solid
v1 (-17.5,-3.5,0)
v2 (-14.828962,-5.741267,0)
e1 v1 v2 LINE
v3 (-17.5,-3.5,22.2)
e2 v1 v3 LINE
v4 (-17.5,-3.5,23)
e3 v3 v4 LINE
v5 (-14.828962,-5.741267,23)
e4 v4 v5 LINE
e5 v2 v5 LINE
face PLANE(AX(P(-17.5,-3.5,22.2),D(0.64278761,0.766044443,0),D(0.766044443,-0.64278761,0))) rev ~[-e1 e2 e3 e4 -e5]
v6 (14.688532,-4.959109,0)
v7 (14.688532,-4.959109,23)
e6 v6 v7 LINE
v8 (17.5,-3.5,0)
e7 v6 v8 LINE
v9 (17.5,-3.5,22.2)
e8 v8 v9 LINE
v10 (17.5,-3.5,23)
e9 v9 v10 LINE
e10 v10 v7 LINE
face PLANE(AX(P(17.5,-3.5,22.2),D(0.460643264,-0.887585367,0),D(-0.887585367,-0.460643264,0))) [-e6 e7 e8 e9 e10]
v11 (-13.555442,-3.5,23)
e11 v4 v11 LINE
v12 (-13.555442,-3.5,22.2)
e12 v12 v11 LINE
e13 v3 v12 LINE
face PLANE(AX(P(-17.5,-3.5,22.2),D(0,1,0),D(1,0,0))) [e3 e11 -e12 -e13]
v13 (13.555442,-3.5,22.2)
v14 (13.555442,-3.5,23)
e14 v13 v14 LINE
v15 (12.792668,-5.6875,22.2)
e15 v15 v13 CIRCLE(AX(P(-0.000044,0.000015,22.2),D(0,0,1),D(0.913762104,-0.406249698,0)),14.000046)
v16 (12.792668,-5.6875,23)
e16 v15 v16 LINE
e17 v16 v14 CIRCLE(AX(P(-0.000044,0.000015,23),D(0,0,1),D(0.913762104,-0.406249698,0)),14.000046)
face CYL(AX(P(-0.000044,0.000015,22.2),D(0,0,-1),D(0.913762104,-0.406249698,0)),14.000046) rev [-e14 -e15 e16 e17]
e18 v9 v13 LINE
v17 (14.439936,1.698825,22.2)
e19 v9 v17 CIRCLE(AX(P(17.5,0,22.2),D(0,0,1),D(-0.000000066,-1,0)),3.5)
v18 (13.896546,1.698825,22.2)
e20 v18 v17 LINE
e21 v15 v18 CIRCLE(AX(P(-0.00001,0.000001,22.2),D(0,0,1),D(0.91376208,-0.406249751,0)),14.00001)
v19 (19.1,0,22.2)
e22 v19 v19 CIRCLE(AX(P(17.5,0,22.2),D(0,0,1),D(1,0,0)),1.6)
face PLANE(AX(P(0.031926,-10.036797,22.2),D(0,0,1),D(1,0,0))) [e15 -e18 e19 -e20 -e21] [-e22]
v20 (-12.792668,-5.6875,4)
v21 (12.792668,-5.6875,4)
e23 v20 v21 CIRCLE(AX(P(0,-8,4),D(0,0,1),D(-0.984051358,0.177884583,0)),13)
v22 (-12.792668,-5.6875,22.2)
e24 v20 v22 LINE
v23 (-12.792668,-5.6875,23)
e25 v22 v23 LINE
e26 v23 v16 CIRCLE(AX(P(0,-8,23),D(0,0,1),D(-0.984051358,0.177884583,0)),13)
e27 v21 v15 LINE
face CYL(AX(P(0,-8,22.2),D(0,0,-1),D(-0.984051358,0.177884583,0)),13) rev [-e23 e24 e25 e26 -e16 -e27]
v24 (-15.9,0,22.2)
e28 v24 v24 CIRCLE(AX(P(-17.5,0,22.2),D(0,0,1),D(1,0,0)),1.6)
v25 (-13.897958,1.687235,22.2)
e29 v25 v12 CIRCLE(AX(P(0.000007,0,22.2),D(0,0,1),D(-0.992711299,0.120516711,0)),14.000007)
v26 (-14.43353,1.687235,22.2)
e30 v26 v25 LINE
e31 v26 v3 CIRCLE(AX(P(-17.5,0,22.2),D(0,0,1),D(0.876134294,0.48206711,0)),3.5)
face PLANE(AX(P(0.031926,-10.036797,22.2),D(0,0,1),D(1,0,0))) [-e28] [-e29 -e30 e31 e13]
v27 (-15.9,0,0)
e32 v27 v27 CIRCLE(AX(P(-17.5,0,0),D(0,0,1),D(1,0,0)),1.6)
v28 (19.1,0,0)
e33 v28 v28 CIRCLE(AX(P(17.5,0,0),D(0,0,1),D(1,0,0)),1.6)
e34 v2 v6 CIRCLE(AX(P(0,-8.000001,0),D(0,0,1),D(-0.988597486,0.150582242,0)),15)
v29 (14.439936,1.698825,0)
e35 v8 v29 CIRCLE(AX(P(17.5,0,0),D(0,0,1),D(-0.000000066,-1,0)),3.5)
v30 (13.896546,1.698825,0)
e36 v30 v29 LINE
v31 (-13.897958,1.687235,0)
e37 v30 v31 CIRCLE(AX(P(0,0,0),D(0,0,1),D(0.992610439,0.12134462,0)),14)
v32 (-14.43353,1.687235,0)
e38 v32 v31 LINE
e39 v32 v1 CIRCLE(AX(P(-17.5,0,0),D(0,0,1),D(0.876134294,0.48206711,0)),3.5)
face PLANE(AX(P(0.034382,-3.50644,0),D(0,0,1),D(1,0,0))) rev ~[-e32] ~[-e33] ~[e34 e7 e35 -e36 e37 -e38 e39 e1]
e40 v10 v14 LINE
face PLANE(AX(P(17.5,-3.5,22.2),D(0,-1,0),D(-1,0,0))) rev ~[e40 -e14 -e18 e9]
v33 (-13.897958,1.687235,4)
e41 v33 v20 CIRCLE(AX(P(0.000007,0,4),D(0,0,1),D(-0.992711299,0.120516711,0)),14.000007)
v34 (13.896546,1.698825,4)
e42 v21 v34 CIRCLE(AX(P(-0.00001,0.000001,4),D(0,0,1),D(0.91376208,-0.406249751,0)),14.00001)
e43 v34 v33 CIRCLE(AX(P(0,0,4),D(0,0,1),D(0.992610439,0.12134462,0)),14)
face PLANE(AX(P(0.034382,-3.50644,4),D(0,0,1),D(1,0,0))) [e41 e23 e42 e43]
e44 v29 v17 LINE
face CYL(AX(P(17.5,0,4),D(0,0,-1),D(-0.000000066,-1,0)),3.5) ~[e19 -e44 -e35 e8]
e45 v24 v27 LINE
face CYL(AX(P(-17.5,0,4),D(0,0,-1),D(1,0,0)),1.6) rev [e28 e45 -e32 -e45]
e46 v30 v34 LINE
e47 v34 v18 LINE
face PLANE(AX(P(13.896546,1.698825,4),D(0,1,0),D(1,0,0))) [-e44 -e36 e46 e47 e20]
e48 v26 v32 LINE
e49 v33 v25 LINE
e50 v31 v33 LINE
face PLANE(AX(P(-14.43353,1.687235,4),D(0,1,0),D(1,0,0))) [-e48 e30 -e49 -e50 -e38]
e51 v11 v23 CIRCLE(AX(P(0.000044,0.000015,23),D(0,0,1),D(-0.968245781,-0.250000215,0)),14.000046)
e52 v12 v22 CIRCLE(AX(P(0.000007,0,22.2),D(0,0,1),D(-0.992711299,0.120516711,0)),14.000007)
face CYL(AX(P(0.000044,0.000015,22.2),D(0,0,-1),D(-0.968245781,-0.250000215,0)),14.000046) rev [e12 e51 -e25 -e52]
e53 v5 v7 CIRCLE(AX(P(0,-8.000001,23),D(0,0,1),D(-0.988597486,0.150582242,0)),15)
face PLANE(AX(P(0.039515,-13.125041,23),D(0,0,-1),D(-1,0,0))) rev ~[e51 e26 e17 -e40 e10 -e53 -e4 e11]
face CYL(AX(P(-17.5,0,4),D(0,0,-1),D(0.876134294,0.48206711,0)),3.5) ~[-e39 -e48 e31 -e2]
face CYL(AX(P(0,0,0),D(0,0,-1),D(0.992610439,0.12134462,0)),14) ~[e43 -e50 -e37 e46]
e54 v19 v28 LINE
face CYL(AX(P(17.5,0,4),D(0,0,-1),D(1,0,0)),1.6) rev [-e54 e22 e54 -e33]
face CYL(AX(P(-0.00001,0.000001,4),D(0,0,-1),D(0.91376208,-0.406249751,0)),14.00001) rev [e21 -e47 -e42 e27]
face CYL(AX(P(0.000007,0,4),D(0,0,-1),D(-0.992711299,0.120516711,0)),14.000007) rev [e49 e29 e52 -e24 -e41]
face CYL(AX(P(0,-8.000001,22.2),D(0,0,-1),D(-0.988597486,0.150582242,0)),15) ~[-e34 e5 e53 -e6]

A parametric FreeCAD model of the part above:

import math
import FreeCAD as App
import Part
import Sketcher

V = App.Vector
Q = App.Units.Quantity

doc = App.newDocument("Part")
body = doc.addObject("PartDesign::Body", "Body")

# Sketch on XY plane
sketch1 = doc.addObject("Sketcher::SketchObject", "Sketch")
body.addObject(sketch1)
sketch1.AttachmentSupport = (doc.XY_Plane, [""])
sketch1.MapMode = "FlatFace"
sketch1.addGeometry([
    Part.ArcOfCircle(Part.Circle(V(-17.5, 0, 0), V(0, 0, 1), 3.5), math.radians(28.820495), math.radians(270.000002)),  # 0
    Part.LineSegment(V(-17.5, -3.5, 0), V(-14.828962, -5.741267, 0)),  # 1
    Part.ArcOfCircle(Part.Circle(V(0, -8.000001, 0), V(0, 0, 1), 15), math.radians(171.33933), math.radians(371.69642)),  # 2
    Part.LineSegment(V(14.688532, -4.959109, 0), V(17.5, -3.5, 0)),  # 3
    Part.ArcOfCircle(Part.Circle(V(17.5, 0, 0), V(0, 0, 1), 3.5), math.radians(-90.000004), math.radians(150.96272)),  # 4
    Part.LineSegment(V(14.439936, 1.698825, 0), V(13.896546, 1.698825, 0)),  # 5
    Part.ArcOfCircle(Part.Circle(V(0, 0, 0), V(0, 0, 1), 14), math.radians(6.969711), math.radians(173.078073)),  # 6
    Part.LineSegment(V(-13.897958, 1.687235, 0), V(-14.43353, 1.687235, 0)),  # 7
    Part.Circle(V(-17.5, 0, 0), V(0, 0, 1), 1.6),  # 8
    Part.Circle(V(17.5, 0, 0), V(0, 0, 1), 1.6),  # 9
], False)
sketch1.addConstraint([
    Sketcher.Constraint("Coincident", 0, 2, 1, 1),
    Sketcher.Constraint("Coincident", 1, 2, 2, 1),
    Sketcher.Constraint("Coincident", 2, 2, 3, 1),
    Sketcher.Constraint("Coincident", 3, 2, 4, 1),
    Sketcher.Constraint("Coincident", 4, 2, 5, 1),
    Sketcher.Constraint("Coincident", 5, 2, 6, 1),
    Sketcher.Constraint("Coincident", 6, 2, 7, 1),
    Sketcher.Constraint("Coincident", 7, 2, 0, 1),
    Sketcher.Constraint("Horizontal", 5),
    Sketcher.Constraint("Horizontal", 7),
    Sketcher.Constraint("Coincident", 6, 3, -1, 1),
    Sketcher.Constraint("Coincident", 8, 3, 0, 3),
    Sketcher.Constraint("Coincident", 9, 3, 4, 3),
    Sketcher.Constraint("Equal", 0, 4),
    Sketcher.Constraint("Equal", 8, 9),
    Sketcher.Constraint("Symmetric", 0, 3, 4, 3, -1, 1),
    Sketcher.Constraint("Symmetric", 0, 2, 3, 2, -2),
    Sketcher.Constraint("PointOnObject", 2, 3, -2),
    Sketcher.Constraint("Vertical", 8, 3, 0, 2),
    Sketcher.Constraint("Radius", 2, 15.0),
    Sketcher.Constraint("Radius", 6, 14.0),
    Sketcher.Constraint("Diameter", 8, 3.2),
    Sketcher.Constraint("Radius", 0, 3.5),
    Sketcher.Constraint("Angle", 1, Q("-40 deg")),
    Sketcher.Constraint("DistanceY", 2, 3, -1, 1, 8.000001),
    Sketcher.Constraint("DistanceX", 0, 3, 4, 3, 35.0),
    Sketcher.Constraint("DistanceX", 5, 2, 5, 1, 0.54339),
    Sketcher.Constraint("DistanceY", 1, 2, 6, 2, 7.428502),
    Sketcher.Constraint("DistanceY", 2, 2, -1, 1, 4.959109),
])
pad1 = doc.addObject("PartDesign::Pad", "Pad")
body.addObject(pad1)
pad1.Profile = sketch1
pad1.Length = 4

# Sketch on XY plane
sketch2 = doc.addObject("Sketcher::SketchObject", "Sketch001")
body.addObject(sketch2)
sketch2.AttachmentSupport = (doc.XY_Plane, [""])
sketch2.MapMode = "FlatFace"
sketch2.AttachmentOffset = App.Placement(V(0, 0, 4), App.Rotation())
sketch2.addGeometry([
    Part.ArcOfCircle(Part.Circle(V(-17.5, 0, 0), V(0, 0, 1), 3.5), math.radians(28.820495), math.radians(270.000002)),  # 0
    Part.LineSegment(V(-17.5, -3.5, 0), V(-14.828962, -5.741267, 0)),  # 1
    Part.ArcOfCircle(Part.Circle(V(0, -8.000001, 0), V(0, 0, 1), 15), math.radians(171.33933), math.radians(371.69642)),  # 2
    Part.LineSegment(V(14.688532, -4.959109, 0), V(17.5, -3.5, 0)),  # 3
    Part.ArcOfCircle(Part.Circle(V(17.5, 0, 0), V(0, 0, 1), 3.5), math.radians(-90.000004), math.radians(150.96272)),  # 4
    Part.LineSegment(V(14.439936, 1.698825, 0), V(13.896546, 1.698825, 0)),  # 5
    Part.ArcOfCircle(Part.Circle(V(-0.00001, 0.000001, 0), V(0, 0, 1), 14.00001), math.radians(-23.969467), math.radians(6.969704)),  # 6
    Part.ArcOfCircle(Part.Circle(V(0, -8, 0), V(0, 0, 1), 13), math.radians(169.753433), math.radians(370.246567)),  # 7
    Part.ArcOfCircle(Part.Circle(V(0.000007, 0, 0), V(0, 0, 1), 14.000007), math.radians(173.078076), math.radians(203.969471)),  # 8
    Part.LineSegment(V(-13.897958, 1.687235, 0), V(-14.43353, 1.687235, 0)),  # 9
    Part.Circle(V(-17.5, 0, 0), V(0, 0, 1), 1.6),  # 10
    Part.Circle(V(17.5, 0, 0), V(0, 0, 1), 1.6),  # 11
], False)
sketch2.addConstraint([
    Sketcher.Constraint("Coincident", 0, 2, 1, 1),
    Sketcher.Constraint("Coincident", 1, 2, 2, 1),
    Sketcher.Constraint("Coincident", 2, 2, 3, 1),
    Sketcher.Constraint("Coincident", 3, 2, 4, 1),
    Sketcher.Constraint("Coincident", 4, 2, 5, 1),
    Sketcher.Constraint("Coincident", 5, 2, 6, 2),
    Sketcher.Constraint("Coincident", 6, 1, 7, 2),
    Sketcher.Constraint("Coincident", 7, 1, 8, 2),
    Sketcher.Constraint("Coincident", 8, 1, 9, 1),
    Sketcher.Constraint("Coincident", 9, 2, 0, 1),
    Sketcher.Constraint("Horizontal", 5),
    Sketcher.Constraint("Horizontal", 9),
    Sketcher.Constraint("Coincident", 8, 3, -1, 1),
    Sketcher.Constraint("Coincident", 7, 3, 2, 3),
    Sketcher.Constraint("Coincident", 10, 3, 0, 3),
    Sketcher.Constraint("Coincident", 11, 3, 4, 3),
    Sketcher.Constraint("Equal", 0, 4),
    Sketcher.Constraint("Equal", 10, 11),
    Sketcher.Constraint("Symmetric", 0, 3, 4, 3, -1, 1),
    Sketcher.Constraint("Symmetric", 6, 3, 8, 3, -1, 1),
    Sketcher.Constraint("Symmetric", 0, 2, 3, 2, -2),
    Sketcher.Constraint("Symmetric", 6, 1, 7, 1, -2),
    Sketcher.Constraint("Vertical", 10, 3, 0, 2),
    Sketcher.Constraint("Radius", 2, 15.0),
    Sketcher.Constraint("Radius", 7, 13.0),
    Sketcher.Constraint("Diameter", 10, 3.2),
    Sketcher.Constraint("Radius", 0, 3.5),
    Sketcher.Constraint("Angle", 1, Q("-40 deg")),
    Sketcher.Constraint("DistanceY", 2, 3, -1, 1, 8.000001),
    Sketcher.Constraint("DistanceX", 0, 3, 4, 3, 35.0),
    Sketcher.Constraint("Radius", 6, 14.00001),
    Sketcher.Constraint("DistanceX", 5, 2, 5, 1, 0.54339),
    Sketcher.Constraint("DistanceX", 9, 2, 9, 1, 0.535572),
    Sketcher.Constraint("DistanceY", 2, 2, -1, 1, 4.959109),
])
pad2 = doc.addObject("PartDesign::Pad", "Pad001")
body.addObject(pad2)
pad2.Profile = sketch2
pad2.Length = 18.2

# Sketch on XY plane
sketch3 = doc.addObject("Sketcher::SketchObject", "Sketch002")
body.addObject(sketch3)
sketch3.AttachmentSupport = (doc.XY_Plane, [""])
sketch3.MapMode = "FlatFace"
sketch3.AttachmentOffset = App.Placement(V(0, 0, 22.2), App.Rotation())
sketch3.addGeometry([
    Part.LineSegment(V(-13.555442, -3.5, 0), V(-17.5, -3.5, 0)),  # 0
    Part.LineSegment(V(-17.5, -3.5, 0), V(-14.828962, -5.741267, 0)),  # 1
    Part.ArcOfCircle(Part.Circle(V(0, -8.000001, 0), V(0, 0, 1), 15), math.radians(171.33933), math.radians(371.69642)),  # 2
    Part.LineSegment(V(14.688532, -4.959109, 0), V(17.5, -3.5, 0)),  # 3
    Part.LineSegment(V(17.5, -3.5, 0), V(13.555442, -3.5, 0)),  # 4
    Part.ArcOfCircle(Part.Circle(V(-0.000044, 0.000015, 0), V(0, 0, 1), 14.000046), math.radians(-23.969463), math.radians(-14.477525)),  # 5
    Part.ArcOfCircle(Part.Circle(V(0, -8, 0), V(0, 0, 1), 13), math.radians(169.753433), math.radians(370.246567)),  # 6
    Part.ArcOfCircle(Part.Circle(V(0.000044, 0.000015, 0), V(0, 0, 1), 14.000046), math.radians(-165.522475), math.radians(-156.030537)),  # 7
], False)
sketch3.addConstraint([
    Sketcher.Constraint("Coincident", 0, 2, 1, 1),
    Sketcher.Constraint("Coincident", 1, 2, 2, 1),
    Sketcher.Constraint("Coincident", 2, 2, 3, 1),
    Sketcher.Constraint("Coincident", 3, 2, 4, 1),
    Sketcher.Constraint("Coincident", 4, 2, 5, 2),
    Sketcher.Constraint("Coincident", 5, 1, 6, 2),
    Sketcher.Constraint("Coincident", 6, 1, 7, 2),
    Sketcher.Constraint("Coincident", 7, 1, 0, 1),
    Sketcher.Constraint("Horizontal", 0),
    Sketcher.Constraint("Horizontal", 4),
    Sketcher.Constraint("Coincident", 6, 3, 2, 3),
    Sketcher.Constraint("Equal", 5, 7),
    Sketcher.Constraint("Symmetric", 5, 3, 7, 3, -2),
    Sketcher.Constraint("Symmetric", 0, 2, 3, 2, -2),
    Sketcher.Constraint("PointOnObject", 2, 3, -2),
    Sketcher.Constraint("Radius", 2, 15.0),
    Sketcher.Constraint("Radius", 6, 13.0),
    Sketcher.Constraint("Angle", 1, Q("-40 deg")),
    Sketcher.Constraint("DistanceY", 2, 3, -1, 1, 8.000001),
    Sketcher.Constraint("DistanceX", 0, 2, -1, 1, 17.5),
    Sketcher.Constraint("DistanceY", 0, 2, -1, 1, 3.5),
    Sketcher.Constraint("Radius", 5, 14.000046),
    Sketcher.Constraint("DistanceX", 0, 2, 0, 1, 3.944558),
    Sketcher.Constraint("DistanceY", 5, 1, -1, 1, 5.6875),
    Sketcher.Constraint("DistanceY", 2, 2, -1, 1, 4.959109),
])
pad3 = doc.addObject("PartDesign::Pad", "Pad002")
body.addObject(pad3)
pad3.Profile = sketch3
pad3.Length = 0.8

doc.recompute()
